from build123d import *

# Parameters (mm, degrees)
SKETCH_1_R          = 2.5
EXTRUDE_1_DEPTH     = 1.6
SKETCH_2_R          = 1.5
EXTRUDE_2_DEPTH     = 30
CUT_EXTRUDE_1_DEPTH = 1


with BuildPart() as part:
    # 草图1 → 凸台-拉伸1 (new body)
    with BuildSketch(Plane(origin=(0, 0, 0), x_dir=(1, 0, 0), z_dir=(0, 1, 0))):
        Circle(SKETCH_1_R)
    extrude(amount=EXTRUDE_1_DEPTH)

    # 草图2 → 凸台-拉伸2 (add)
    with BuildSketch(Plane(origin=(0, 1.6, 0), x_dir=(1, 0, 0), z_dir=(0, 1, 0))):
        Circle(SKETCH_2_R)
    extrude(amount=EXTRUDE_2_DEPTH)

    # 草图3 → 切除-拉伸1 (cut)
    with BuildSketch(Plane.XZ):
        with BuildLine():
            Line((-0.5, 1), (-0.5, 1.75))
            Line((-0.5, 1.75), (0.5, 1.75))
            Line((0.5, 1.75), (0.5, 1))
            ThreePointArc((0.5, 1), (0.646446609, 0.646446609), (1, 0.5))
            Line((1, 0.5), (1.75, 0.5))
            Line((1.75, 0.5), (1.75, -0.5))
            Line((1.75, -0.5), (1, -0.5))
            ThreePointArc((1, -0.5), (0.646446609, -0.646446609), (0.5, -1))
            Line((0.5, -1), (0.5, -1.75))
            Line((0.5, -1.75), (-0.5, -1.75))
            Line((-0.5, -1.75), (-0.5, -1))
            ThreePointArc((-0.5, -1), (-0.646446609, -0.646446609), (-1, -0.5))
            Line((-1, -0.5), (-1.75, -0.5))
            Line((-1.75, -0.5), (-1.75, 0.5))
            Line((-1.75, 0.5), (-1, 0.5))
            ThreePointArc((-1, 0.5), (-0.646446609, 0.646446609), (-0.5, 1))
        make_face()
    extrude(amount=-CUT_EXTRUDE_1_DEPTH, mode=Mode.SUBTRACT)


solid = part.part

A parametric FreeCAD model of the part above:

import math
import FreeCAD as App
import Part
import Sketcher
from FreeCAD import Vector

doc = App.newDocument("Part")
body = doc.addObject("PartDesign::Body", "Body")

# Sketch on XZ plane
sketch1 = body.newObject("Sketcher::SketchObject", "Sketch")
sketch1.AttachmentSupport = (doc.getObject("XZ_Plane"), [""])
sketch1.MapMode = "FlatFace"
sketch1.addGeometry(Part.Circle(Vector(0, 0, 0), Vector(0, 0, 1), 2.5), False)
sketch1.addConstraint([
    Sketcher.Constraint("Coincident", 0, 3, -1, 1),
    Sketcher.Constraint("Diameter", 0, 5.0),
])
pad1 = body.newObject("PartDesign::Pad", "Pad")
pad1.Profile = sketch1
pad1.Length = 1.6
pad1.Reversed = True

# Sketch on XZ plane
sketch2 = body.newObject("Sketcher::SketchObject", "Sketch001")
sketch2.AttachmentSupport = (doc.getObject("XZ_Plane"), [""])
sketch2.MapMode = "FlatFace"
sketch2.AttachmentOffset = App.Placement(Vector(0, 0, -1.6), App.Rotation())
sketch2.addGeometry(Part.Circle(Vector(0, 0, 0), Vector(0, 0, 1), 1.5), False)
sketch2.addConstraint([
    Sketcher.Constraint("Coincident", 0, 3, -1, 1),
    Sketcher.Constraint("Diameter", 0, 3.0),
])
pad2 = body.newObject("PartDesign::Pad", "Pad001")
pad2.Profile = sketch2
pad2.Length = 30
pad2.Reversed = True

# Sketch on XZ plane
sketch3 = body.newObject("Sketcher::SketchObject", "Sketch002")
sketch3.AttachmentSupport = (doc.getObject("XZ_Plane"), [""])
sketch3.MapMode = "FlatFace"
sketch3.addGeometry([
    Part.LineSegment(Vector(-0.5, 1.75, 0), Vector(-0.5, 1, 0)),  # 0
    Part.ArcOfCircle(Part.Circle(Vector(-1, 1, 0), Vector(0, 0, 1), 0.5), math.radians(-90), math.radians(0)),  # 1
    Part.LineSegment(Vector(-1, 0.5, 0), Vector(-1.75, 0.5, 0)),  # 2
    Part.LineSegment(Vector(-1.75, 0.5, 0), Vector(-1.75, -0.5, 0)),  # 3
    Part.LineSegment(Vector(-1.75, -0.5, 0), Vector(-1, -0.5, 0)),  # 4
    Part.ArcOfCircle(Part.Circle(Vector(-1, -1, 0), Vector(0, 0, 1), 0.5), math.radians(0), math.radians(90)),  # 5
    Part.LineSegment(Vector(-0.5, -1, 0), Vector(-0.5, -1.75, 0)),  # 6
    Part.LineSegment(Vector(-0.5, -1.75, 0), Vector(0.5, -1.75, 0)),  # 7
    Part.LineSegment(Vector(0.5, -1.75, 0), Vector(0.5, -1, 0)),  # 8
    Part.ArcOfCircle(Part.Circle(Vector(1, -1, 0), Vector(0, 0, 1), 0.5), math.radians(90), math.radians(180)),  # 9
    Part.LineSegment(Vector(1, -0.5, 0), Vector(1.75, -0.5, 0)),  # 10
    Part.LineSegment(Vector(1.75, -0.5, 0), Vector(1.75, 0.5, 0)),  # 11
    Part.LineSegment(Vector(1.75, 0.5, 0), Vector(1, 0.5, 0)),  # 12
    Part.ArcOfCircle(Part.Circle(Vector(1, 1, 0), Vector(0, 0, 1), 0.5), math.radians(180), math.radians(270)),  # 13
    Part.LineSegment(Vector(0.5, 1, 0), Vector(0.5, 1.75, 0)),  # 14
    Part.LineSegment(Vector(0.5, 1.75, 0), Vector(-0.5, 1.75, 0)),  # 15
], False)
sketch3.addConstraint([
    Sketcher.Constraint("Tangent", 0, 2, 1, 2),
    Sketcher.Constraint("Tangent", 1, 1, 2, 1),
    Sketcher.Constraint("Coincident", 2, 2, 3, 1),
    Sketcher.Constraint("Coincident", 3, 2, 4, 1),
    Sketcher.Constraint("Tangent", 4, 2, 5, 2),
    Sketcher.Constraint("Tangent", 5, 1, 6, 1),
    Sketcher.Constraint("Coincident", 6, 2, 7, 1),
    Sketcher.Constraint("Coincident", 7, 2, 8, 1),
    Sketcher.Constraint("Tangent", 8, 2, 9, 2),
    Sketcher.Constraint("Tangent", 9, 1, 10, 1),
    Sketcher.Constraint("Coincident", 10, 2, 11, 1),
    Sketcher.Constraint("Coincident", 11, 2, 12, 1),
    Sketcher.Constraint("Tangent", 12, 2, 13, 2),
    Sketcher.Constraint("Tangent", 13, 1, 14, 1),
    Sketcher.Constraint("Coincident", 14, 2, 15, 1),
    Sketcher.Constraint("Coincident", 15, 2, 0, 1),
    Sketcher.Constraint("Vertical", 0),
    Sketcher.Constraint("Horizontal", 2),
    Sketcher.Constraint("Vertical", 3),
    Sketcher.Constraint("Horizontal", 4),
    Sketcher.Constraint("Vertical", 6),
    Sketcher.Constraint("Horizontal", 7),
    Sketcher.Constraint("Vertical", 8),
    Sketcher.Constraint("Horizontal", 10),
    Sketcher.Constraint("Vertical", 11),
    Sketcher.Constraint("Horizontal", 12),
    Sketcher.Constraint("Vertical", 14),
    Sketcher.Constraint("Horizontal", 15),
    Sketcher.Constraint("Equal", 1, 5),
    Sketcher.Constraint("Equal", 5, 9),
    Sketcher.Constraint("Equal", 9, 13),
    Sketcher.Constraint("Symmetric", 1, 3, 9, 3, -1, 1),
    Sketcher.Constraint("Symmetric", 5, 3, 13, 3, -1, 1),
    Sketcher.Constraint("Symmetric", 5, 3, 9, 3, -2),
    Sketcher.Constraint("Equal", 4, 10),
    Sketcher.Constraint("Equal", 12, 0),
    Sketcher.Constraint("Equal", 15, 3),
    Sketcher.Constraint("Equal", 0, 6),
    Sketcher.Constraint("Radius", 1, 0.5),
    Sketcher.Constraint("DistanceX", 7, 1, 7, 2, 1.0),
    Sketcher.Constraint("DistanceX", 2, 2, 2, 1, 0.75),
])
pocket1 = body.newObject("PartDesign::Pocket", "Pocket")
pocket1.Profile = sketch3
pocket1.Length = 1

doc.recompute()
